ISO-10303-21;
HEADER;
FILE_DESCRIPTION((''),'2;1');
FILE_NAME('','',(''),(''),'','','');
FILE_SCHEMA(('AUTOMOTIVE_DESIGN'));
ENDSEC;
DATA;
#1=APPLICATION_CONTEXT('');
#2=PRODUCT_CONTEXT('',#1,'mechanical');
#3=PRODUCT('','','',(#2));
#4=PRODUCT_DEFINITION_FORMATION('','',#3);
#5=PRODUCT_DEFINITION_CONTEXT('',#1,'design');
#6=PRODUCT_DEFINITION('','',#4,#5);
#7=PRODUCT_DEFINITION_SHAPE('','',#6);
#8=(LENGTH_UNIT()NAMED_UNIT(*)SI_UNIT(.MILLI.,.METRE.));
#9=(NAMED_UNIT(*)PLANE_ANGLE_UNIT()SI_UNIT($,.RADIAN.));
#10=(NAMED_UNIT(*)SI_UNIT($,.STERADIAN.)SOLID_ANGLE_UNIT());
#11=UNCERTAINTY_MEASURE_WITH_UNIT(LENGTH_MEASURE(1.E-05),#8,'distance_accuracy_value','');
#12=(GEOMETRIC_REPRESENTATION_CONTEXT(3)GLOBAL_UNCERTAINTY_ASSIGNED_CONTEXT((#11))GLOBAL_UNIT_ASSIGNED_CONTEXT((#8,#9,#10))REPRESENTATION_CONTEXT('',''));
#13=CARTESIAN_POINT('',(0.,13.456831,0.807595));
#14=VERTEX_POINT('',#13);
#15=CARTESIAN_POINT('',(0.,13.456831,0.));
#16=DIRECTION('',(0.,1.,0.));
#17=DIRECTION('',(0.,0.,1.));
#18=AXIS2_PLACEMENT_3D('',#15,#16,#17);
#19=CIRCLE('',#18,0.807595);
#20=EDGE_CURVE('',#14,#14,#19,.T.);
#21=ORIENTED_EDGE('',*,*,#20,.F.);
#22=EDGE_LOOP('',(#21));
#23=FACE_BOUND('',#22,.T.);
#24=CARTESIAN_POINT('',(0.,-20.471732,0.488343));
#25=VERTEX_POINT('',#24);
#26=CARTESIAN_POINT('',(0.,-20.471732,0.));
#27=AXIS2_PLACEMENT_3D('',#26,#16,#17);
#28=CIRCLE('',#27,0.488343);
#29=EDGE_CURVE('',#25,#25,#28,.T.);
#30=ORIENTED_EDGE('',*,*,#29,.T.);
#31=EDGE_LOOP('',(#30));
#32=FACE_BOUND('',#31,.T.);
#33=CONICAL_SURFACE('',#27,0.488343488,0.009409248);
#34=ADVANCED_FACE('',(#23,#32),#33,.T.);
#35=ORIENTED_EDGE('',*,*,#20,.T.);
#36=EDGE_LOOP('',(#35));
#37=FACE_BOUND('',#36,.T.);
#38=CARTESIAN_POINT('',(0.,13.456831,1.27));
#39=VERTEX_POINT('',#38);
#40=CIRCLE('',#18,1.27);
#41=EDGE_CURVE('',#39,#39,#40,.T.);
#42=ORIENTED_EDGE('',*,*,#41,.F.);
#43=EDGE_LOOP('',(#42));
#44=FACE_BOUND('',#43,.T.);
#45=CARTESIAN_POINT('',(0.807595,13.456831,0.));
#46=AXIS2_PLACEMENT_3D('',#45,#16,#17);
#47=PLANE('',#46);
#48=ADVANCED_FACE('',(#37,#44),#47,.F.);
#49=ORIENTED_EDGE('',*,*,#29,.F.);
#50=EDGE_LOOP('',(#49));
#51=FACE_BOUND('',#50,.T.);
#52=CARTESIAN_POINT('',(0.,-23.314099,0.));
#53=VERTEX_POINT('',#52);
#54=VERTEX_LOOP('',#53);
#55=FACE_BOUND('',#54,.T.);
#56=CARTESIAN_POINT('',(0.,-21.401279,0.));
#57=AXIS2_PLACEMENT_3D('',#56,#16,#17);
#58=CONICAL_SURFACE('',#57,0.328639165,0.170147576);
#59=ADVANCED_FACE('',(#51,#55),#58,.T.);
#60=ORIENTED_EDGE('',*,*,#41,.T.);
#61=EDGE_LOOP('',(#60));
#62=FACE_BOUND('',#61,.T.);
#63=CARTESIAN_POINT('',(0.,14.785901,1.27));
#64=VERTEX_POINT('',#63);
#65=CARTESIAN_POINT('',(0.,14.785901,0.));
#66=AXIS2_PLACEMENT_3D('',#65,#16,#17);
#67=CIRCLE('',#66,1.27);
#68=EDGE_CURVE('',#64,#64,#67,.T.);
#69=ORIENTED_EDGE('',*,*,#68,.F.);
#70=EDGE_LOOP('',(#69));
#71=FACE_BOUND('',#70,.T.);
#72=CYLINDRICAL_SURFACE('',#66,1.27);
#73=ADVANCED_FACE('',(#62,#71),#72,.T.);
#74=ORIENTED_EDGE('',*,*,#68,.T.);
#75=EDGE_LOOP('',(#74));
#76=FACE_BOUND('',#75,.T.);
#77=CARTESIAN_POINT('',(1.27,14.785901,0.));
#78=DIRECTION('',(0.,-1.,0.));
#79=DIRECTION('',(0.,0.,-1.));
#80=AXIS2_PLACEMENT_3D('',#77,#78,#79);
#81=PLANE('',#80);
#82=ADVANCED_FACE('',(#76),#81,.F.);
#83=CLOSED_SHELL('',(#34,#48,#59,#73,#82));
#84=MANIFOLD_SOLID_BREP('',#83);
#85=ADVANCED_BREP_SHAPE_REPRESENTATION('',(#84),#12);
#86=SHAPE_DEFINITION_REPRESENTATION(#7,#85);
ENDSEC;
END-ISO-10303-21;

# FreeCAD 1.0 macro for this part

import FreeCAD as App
import Part
import Sketcher
from FreeCAD import Vector
Q = App.Units.Quantity


def add_polygon(sketch, points):
    """Adds a closed chain of lines whose ends are joined by coincident constraints."""
    first, n = sketch.GeometryCount, len(points)
    for a, b in zip(points, points[1:] + points[:1]):
        sketch.addGeometry(Part.LineSegment(App.Vector(*a, 0), App.Vector(*b, 0)), False)
    for i in range(n):
        sketch.addConstraint(Sketcher.Constraint("Coincident", first + i, 2, first + (i + 1) % n, 1))

doc = App.newDocument("Part")
body = doc.addObject("PartDesign::Body", "Body")

# Sketch on XY plane
sketch1 = doc.addObject("Sketcher::SketchObject", "Sketch")
body.addObject(sketch1)
sketch1.AttachmentSupport = (doc.XY_Plane, [""])
sketch1.MapMode = "FlatFace"
add_polygon(sketch1, [(0, -23.314099), (0.328639, -21.401279), (0.488343, -20.471732), (0.807595, 13.456831), (1.27, 13.456831), (1.27, 14.785901), (0, 14.785901)])  # lines 0-6
sketch1.addConstraint([
    Sketcher.Constraint("Horizontal", 3),
    Sketcher.Constraint("Vertical", 4),
    Sketcher.Constraint("Horizontal", 5),
    Sketcher.Constraint("Vertical", 6),
    Sketcher.Constraint("PointOnObject", 5, 2, -2),
    Sketcher.Constraint("Parallel", 0, 1),
    Sketcher.Constraint("DistanceY", 6, 2, 6, 1, Q("1.5 in")),
    Sketcher.Constraint("DistanceX", 5, 2, 5, 1, Q("0.05 in")),
    Sketcher.Constraint("DistanceY", 4, 1, 4, 2, Q("1.32907 mm")),
    Sketcher.Constraint("DistanceY", -1, 1, 4, 2, Q("14.785901 mm")),
    Sketcher.Constraint("DistanceX", 3, 1, 3, 2, Q("0.462405 mm")),
    Sketcher.Constraint("DistanceX", -1, 1, 0, 2, Q("0.328639 mm")),
    Sketcher.Constraint("DistanceY", 0, 2, -1, 1, Q("21.401279 mm")),
    Sketcher.Constraint("DistanceX", 1, 2, 2, 2, Q("0.319252 mm")),
])
revolution = doc.addObject("PartDesign::Revolution", "Revolution")
body.addObject(revolution)
revolution.Profile = sketch1
revolution.ReferenceAxis = (sketch1, ["V_Axis"])
revolution.Angle = 360

doc.recompute()
